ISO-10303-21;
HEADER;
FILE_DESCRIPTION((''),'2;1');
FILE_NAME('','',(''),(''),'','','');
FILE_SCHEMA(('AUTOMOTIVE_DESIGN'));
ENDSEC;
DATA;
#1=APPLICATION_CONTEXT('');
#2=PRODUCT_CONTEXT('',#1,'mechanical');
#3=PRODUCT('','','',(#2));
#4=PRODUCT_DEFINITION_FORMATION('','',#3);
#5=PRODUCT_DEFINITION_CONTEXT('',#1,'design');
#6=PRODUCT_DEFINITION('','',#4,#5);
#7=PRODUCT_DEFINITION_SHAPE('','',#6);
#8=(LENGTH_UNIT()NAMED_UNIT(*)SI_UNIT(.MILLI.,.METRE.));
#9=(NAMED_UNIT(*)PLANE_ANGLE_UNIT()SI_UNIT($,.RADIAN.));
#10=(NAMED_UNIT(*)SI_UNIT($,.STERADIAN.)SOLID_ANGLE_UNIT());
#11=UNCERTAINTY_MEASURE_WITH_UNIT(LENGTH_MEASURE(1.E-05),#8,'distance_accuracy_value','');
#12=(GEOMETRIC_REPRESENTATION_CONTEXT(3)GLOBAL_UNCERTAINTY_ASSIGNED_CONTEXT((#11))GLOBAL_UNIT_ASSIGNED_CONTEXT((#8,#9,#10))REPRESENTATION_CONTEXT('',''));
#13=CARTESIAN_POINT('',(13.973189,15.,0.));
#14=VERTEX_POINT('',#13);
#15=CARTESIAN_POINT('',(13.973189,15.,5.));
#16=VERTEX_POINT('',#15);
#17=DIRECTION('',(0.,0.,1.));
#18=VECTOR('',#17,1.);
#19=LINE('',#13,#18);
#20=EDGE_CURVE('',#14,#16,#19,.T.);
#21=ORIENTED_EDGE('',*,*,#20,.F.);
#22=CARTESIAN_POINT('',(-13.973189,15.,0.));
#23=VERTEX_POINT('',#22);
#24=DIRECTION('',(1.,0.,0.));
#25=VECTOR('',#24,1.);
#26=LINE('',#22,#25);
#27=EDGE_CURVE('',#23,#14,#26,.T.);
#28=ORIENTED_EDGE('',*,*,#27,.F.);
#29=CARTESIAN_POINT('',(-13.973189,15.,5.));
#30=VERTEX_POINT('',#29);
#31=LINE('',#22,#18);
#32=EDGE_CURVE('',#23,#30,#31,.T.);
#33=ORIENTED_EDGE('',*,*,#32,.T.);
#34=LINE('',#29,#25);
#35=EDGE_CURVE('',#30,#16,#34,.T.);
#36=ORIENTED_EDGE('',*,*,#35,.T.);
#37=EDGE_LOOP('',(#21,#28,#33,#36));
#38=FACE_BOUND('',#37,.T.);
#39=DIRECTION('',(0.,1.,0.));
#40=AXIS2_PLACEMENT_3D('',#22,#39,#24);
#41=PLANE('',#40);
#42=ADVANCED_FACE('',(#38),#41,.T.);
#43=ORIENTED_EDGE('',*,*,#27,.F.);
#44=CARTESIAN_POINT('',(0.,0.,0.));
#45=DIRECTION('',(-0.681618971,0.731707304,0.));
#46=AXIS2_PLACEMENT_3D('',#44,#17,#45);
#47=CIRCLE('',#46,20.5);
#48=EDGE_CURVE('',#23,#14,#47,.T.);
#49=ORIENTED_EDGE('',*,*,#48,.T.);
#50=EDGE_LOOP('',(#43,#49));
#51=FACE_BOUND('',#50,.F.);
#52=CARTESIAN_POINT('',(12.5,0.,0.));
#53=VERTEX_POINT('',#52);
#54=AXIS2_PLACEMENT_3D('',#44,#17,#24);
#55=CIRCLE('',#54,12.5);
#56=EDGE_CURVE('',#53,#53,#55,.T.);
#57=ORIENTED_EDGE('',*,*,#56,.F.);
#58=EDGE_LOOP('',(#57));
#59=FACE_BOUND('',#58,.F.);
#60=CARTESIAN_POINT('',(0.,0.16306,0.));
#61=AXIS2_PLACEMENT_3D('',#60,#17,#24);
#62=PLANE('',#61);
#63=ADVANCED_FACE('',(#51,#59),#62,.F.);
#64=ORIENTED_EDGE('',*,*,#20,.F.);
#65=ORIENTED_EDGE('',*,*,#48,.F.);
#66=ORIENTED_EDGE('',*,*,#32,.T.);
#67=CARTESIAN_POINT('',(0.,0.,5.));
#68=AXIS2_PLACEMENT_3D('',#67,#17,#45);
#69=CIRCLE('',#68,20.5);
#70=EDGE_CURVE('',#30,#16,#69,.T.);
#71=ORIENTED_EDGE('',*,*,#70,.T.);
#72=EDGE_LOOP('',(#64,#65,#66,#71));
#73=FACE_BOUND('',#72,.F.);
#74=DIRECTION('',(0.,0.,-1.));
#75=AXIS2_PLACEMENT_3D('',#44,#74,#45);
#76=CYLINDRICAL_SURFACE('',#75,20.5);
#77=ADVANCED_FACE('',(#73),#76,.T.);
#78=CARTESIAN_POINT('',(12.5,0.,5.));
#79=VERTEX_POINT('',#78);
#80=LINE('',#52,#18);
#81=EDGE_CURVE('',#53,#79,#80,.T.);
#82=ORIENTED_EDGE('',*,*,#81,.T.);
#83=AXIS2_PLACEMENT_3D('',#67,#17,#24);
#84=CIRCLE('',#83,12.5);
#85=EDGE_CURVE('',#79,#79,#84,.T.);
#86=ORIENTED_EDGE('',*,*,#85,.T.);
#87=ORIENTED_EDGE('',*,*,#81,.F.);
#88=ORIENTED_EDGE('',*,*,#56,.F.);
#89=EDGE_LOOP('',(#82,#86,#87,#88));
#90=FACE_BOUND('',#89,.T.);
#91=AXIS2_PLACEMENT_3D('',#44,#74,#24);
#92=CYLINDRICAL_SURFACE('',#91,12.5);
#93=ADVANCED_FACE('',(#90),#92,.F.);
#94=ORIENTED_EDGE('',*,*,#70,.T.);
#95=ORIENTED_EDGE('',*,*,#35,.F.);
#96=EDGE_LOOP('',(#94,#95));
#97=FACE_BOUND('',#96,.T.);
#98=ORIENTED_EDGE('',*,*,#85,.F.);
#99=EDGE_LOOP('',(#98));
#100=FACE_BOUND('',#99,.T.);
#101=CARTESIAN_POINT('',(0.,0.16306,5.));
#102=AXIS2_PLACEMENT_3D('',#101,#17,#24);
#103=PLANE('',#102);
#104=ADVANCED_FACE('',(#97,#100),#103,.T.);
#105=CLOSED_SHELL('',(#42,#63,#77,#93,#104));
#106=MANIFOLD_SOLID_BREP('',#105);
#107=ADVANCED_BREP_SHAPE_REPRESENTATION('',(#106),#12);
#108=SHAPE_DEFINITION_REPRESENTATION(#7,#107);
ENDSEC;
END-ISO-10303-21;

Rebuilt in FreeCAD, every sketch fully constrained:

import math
import FreeCAD as App
import Part
import Sketcher
from FreeCAD import Vector
Q = App.Units.Quantity

doc = App.newDocument("Part")
body = doc.addObject("PartDesign::Body", "Body")

sketch1 = body.newObject("Sketcher::SketchObject", "Sketch")
sketch1.AttachmentSupport = (doc.getObject("XY_Plane"), [""])
sketch1.MapMode = "FlatFace"
sketch1.addGeometry([
    Part.ArcOfCircle(Part.Circle(Vector(0, 0, 0), Vector(0, 0, 1), 20.5), math.radians(132.970285), math.radians(407.029715)),
    Part.LineSegment(Vector(13.973189, 15, 0), Vector(-13.973189, 15, 0)),
    Part.Circle(Vector(0, 0, 0), Vector(0, 0, 1), 12.5),
], False)
sketch1.addConstraint([
    Sketcher.Constraint("Coincident", 0, 1, 1, 2),
    Sketcher.Constraint("Coincident", 1, 1, 0, 2),
    Sketcher.Constraint("Horizontal", 1),
    Sketcher.Constraint("Coincident", 0, 3, -1, 1),
    Sketcher.Constraint("Coincident", 2, 3, -1, 1),
    Sketcher.Constraint("Diameter", 2, Q("25 mm")),
    Sketcher.Constraint("Radius", 0, Q("20.5 mm")),
    Sketcher.Constraint("DistanceY", -1, 1, 0, 1, Q("15 mm")),
])
pad1 = body.newObject("PartDesign::Pad", "Pad")
pad1.Profile = sketch1
pad1.Length = 5

doc.recompute()
